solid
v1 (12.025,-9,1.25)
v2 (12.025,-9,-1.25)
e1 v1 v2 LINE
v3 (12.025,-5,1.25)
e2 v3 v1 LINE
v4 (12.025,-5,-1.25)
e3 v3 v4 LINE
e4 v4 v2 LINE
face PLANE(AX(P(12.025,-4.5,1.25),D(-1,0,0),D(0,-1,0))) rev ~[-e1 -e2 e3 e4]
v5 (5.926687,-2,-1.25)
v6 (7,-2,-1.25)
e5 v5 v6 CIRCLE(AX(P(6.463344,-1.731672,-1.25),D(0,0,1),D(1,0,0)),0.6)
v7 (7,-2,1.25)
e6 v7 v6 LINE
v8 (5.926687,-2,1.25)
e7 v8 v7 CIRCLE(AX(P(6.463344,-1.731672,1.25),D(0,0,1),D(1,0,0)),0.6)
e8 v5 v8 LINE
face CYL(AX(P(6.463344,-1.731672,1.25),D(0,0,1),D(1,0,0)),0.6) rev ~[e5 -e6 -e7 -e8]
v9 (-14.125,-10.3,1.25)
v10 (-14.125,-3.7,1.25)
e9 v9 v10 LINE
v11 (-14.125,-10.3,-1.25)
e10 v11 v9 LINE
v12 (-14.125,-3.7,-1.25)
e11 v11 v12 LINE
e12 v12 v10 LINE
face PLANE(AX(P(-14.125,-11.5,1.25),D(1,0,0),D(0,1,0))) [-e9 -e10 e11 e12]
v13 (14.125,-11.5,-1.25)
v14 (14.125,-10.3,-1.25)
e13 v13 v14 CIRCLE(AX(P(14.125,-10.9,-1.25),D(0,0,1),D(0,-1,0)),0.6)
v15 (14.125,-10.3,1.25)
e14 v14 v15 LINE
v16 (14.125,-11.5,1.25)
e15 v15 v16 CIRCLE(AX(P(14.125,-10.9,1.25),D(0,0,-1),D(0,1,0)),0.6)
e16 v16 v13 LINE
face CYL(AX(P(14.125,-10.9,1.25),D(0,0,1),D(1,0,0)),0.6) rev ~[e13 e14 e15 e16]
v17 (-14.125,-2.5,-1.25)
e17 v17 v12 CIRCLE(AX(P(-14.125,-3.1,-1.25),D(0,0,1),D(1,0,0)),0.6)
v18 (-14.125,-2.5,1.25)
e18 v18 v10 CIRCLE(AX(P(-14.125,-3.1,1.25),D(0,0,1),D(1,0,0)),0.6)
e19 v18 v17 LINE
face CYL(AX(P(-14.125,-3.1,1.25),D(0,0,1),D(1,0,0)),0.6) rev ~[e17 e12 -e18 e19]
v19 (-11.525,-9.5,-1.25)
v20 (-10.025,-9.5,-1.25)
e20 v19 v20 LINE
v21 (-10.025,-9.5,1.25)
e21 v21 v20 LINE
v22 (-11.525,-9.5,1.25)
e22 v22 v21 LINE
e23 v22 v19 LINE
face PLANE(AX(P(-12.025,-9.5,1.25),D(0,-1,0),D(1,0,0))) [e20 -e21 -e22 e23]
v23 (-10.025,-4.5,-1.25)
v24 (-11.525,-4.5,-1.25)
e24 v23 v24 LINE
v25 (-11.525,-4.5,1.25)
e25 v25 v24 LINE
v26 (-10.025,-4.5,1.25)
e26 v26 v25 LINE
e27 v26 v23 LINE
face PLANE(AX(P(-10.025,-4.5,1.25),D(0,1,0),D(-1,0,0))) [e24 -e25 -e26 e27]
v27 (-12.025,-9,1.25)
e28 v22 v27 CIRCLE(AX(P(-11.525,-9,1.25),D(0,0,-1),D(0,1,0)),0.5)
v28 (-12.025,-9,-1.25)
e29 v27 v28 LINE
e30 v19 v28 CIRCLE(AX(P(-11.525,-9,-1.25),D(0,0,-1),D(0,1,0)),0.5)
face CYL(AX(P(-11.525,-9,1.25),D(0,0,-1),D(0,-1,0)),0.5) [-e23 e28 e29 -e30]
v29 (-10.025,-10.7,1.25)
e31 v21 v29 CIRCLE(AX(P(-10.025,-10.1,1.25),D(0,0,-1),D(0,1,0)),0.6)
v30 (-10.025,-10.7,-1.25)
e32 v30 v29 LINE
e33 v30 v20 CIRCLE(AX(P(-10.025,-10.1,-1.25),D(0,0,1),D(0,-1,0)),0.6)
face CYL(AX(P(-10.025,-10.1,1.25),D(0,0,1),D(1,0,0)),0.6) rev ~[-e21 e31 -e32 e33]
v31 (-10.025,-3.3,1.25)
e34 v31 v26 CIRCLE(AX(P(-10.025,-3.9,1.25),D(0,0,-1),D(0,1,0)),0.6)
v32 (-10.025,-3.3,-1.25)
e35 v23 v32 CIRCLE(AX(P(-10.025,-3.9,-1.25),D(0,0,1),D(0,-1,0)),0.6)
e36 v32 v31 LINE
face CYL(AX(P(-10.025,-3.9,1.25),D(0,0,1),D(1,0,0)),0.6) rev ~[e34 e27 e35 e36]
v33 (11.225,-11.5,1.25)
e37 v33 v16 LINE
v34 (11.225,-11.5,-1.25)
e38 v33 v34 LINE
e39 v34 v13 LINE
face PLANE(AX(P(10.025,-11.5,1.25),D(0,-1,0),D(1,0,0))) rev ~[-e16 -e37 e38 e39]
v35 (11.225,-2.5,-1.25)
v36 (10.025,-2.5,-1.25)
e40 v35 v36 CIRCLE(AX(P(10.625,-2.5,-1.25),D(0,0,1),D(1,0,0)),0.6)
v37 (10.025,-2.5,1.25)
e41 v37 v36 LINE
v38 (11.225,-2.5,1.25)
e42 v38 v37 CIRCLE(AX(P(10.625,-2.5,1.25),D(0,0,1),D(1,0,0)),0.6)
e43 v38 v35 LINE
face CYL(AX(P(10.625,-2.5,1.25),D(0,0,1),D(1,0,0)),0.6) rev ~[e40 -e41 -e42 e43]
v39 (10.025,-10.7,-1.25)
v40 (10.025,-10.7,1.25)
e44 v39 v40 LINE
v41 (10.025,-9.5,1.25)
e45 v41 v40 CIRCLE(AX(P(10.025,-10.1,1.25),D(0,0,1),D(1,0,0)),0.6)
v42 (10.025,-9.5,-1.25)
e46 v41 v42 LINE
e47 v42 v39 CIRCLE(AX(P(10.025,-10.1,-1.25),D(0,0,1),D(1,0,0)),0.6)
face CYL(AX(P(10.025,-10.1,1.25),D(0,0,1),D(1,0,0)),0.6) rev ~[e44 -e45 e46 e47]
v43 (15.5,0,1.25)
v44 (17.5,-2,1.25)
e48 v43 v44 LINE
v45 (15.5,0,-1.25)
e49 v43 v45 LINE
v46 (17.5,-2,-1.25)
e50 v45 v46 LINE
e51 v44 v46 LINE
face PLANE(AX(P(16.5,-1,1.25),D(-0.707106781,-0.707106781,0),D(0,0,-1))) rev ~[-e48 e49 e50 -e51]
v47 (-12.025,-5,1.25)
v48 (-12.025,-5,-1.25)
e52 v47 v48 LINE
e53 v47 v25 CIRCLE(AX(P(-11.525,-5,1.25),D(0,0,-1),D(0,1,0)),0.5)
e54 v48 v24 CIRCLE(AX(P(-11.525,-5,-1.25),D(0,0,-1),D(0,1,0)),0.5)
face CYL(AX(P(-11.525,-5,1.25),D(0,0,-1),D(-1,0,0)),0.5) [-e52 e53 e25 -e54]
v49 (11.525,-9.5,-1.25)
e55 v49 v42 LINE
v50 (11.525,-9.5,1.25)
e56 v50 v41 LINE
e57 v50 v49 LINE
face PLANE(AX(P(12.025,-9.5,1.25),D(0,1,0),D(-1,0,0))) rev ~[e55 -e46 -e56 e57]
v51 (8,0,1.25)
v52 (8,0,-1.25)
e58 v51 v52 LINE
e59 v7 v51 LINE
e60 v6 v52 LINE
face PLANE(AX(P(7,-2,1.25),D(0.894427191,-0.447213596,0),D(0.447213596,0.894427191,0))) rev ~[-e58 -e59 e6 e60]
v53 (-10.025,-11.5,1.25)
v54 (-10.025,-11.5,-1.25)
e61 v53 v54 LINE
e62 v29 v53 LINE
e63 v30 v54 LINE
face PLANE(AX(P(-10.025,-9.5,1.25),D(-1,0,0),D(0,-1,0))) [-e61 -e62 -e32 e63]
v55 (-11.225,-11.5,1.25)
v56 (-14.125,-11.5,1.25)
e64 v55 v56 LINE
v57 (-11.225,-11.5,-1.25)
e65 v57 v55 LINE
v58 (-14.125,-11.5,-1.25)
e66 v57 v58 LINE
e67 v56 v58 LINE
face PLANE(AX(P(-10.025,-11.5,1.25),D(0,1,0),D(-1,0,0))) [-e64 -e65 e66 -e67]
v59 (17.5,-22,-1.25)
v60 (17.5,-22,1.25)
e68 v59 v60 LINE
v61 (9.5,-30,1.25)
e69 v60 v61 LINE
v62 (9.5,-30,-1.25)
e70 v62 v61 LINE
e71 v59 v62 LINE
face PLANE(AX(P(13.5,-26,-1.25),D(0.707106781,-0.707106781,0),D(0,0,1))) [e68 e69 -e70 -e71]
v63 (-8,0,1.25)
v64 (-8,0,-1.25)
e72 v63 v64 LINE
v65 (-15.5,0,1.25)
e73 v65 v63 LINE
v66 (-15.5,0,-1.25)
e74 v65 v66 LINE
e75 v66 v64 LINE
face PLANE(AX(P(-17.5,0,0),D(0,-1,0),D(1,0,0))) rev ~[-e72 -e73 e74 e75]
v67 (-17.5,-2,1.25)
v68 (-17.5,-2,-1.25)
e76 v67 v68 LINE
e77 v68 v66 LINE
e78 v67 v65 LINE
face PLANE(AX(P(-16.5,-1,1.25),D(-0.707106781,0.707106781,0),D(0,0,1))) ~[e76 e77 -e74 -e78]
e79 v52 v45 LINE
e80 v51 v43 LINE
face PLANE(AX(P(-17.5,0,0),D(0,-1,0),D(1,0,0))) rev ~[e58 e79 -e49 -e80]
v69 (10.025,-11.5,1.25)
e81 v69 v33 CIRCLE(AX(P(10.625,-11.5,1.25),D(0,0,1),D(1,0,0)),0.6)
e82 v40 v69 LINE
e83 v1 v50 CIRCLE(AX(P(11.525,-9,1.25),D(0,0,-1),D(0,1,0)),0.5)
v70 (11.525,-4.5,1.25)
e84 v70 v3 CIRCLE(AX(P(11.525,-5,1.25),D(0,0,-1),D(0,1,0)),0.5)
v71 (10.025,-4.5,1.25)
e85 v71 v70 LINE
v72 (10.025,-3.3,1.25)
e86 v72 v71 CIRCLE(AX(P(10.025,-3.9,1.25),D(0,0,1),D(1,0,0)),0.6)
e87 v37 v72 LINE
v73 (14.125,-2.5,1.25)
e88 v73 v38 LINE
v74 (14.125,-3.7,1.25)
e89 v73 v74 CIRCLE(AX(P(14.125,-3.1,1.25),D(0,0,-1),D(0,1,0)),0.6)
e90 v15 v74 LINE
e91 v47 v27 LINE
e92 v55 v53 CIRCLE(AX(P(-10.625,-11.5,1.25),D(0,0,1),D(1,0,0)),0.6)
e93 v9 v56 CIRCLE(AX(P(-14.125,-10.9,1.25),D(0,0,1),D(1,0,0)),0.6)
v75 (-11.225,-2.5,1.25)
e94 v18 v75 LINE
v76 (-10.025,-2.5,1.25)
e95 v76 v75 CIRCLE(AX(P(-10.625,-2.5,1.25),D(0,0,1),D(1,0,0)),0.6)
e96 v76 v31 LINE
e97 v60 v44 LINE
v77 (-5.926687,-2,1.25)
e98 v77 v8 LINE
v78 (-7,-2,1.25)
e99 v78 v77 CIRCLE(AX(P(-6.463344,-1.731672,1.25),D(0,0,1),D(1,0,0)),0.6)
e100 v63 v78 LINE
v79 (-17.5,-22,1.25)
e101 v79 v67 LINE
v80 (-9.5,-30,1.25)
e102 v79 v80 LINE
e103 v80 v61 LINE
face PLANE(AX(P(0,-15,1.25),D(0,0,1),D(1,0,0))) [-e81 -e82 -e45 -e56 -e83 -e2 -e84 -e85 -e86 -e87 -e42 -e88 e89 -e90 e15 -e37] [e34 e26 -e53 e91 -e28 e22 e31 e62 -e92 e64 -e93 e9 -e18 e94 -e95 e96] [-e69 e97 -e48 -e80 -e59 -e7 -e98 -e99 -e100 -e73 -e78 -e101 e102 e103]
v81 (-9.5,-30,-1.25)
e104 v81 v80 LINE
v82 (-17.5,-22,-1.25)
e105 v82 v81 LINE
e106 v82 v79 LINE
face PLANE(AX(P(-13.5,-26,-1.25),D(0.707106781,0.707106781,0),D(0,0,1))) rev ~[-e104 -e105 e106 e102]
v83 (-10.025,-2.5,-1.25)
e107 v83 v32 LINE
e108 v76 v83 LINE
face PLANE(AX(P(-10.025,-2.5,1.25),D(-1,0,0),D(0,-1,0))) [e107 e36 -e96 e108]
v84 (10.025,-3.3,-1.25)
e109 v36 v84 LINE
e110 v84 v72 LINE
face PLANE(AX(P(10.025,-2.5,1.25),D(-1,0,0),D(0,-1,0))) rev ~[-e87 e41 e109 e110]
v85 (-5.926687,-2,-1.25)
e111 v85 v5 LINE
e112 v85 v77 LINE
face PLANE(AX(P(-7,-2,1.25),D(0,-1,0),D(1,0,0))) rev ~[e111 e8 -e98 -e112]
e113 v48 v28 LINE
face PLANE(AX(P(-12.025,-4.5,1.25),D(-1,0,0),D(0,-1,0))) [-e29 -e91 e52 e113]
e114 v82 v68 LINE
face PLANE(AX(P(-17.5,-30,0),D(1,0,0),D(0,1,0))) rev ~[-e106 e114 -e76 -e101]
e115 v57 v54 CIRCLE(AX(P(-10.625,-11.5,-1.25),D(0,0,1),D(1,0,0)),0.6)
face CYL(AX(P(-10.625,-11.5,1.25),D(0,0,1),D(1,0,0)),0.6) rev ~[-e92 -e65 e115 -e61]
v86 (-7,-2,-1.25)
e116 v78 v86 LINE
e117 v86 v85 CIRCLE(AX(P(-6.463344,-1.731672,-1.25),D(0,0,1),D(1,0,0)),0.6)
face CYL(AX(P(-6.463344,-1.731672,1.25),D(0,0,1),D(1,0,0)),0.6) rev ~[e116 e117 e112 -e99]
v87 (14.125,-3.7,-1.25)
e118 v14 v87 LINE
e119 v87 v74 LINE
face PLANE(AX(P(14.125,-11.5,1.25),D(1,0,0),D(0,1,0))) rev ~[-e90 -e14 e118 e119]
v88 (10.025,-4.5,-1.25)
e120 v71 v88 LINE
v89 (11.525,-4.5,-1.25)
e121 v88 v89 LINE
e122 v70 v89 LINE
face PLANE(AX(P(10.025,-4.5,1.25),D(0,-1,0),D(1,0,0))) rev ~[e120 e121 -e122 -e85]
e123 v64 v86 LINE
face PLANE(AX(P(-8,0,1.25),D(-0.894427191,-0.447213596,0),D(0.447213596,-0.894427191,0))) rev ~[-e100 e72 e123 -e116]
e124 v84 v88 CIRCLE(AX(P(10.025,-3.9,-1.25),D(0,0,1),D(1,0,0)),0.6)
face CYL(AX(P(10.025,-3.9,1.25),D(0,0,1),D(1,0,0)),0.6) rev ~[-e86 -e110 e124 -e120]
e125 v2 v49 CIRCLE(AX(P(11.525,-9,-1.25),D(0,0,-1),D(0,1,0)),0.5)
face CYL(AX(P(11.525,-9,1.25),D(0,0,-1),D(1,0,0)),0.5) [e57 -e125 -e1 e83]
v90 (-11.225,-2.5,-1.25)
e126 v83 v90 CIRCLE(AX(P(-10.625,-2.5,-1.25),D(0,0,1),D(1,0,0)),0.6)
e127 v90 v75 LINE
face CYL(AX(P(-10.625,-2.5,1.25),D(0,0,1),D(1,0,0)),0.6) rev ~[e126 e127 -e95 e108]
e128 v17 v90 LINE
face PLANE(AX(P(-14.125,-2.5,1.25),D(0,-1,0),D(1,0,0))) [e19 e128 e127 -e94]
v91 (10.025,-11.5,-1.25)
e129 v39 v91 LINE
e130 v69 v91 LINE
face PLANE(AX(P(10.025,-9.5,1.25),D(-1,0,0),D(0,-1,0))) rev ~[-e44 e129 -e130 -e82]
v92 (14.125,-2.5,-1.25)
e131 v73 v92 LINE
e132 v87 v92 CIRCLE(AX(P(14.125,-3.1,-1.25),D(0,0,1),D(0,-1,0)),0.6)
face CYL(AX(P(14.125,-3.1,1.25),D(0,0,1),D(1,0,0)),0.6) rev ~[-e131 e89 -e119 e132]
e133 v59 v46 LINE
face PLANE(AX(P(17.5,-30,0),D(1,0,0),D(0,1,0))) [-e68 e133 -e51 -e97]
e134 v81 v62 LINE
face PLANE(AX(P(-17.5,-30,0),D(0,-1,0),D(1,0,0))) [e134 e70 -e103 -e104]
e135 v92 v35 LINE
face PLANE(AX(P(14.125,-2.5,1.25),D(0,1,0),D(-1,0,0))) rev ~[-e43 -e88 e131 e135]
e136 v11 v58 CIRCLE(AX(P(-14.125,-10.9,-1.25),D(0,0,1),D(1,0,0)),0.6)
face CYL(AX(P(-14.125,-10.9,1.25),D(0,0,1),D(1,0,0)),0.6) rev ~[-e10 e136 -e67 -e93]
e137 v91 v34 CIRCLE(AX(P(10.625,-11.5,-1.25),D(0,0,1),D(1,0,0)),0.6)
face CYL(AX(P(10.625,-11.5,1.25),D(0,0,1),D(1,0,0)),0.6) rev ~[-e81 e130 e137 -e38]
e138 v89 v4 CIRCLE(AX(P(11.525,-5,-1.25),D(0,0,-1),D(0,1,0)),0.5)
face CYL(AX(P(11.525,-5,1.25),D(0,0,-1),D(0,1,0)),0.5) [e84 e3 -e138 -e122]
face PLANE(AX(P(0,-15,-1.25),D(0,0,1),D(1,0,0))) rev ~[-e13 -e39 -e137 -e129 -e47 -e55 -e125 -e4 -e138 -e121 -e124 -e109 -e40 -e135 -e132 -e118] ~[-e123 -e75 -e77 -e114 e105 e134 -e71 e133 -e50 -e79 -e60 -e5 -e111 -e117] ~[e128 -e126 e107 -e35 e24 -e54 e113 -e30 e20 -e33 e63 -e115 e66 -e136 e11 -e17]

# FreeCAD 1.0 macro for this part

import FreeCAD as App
import Part
import Sketcher

V = App.Vector
Q = App.Units.Quantity


def edges_at(feature, points):
    """Names of the edges that pass closest to the given points."""
    edges = feature.Shape.Edges
    near = lambda p: min(range(len(edges)), key=lambda i: edges[i].distToShape(Part.Vertex(*p))[0])
    return sorted({f"Edge{near(p) + 1}" for p in points})


def add_polygon(sketch, points):
    """Adds a closed chain of lines whose ends are joined by coincident constraints."""
    first, n = sketch.GeometryCount, len(points)
    for a, b in zip(points, points[1:] + points[:1]):
        sketch.addGeometry(Part.LineSegment(App.Vector(*a, 0), App.Vector(*b, 0)), False)
    for i in range(n):
        sketch.addConstraint(Sketcher.Constraint("Coincident", first + i, 2, first + (i + 1) % n, 1))

doc = App.newDocument("Part")
body = doc.addObject("PartDesign::Body", "Body")

sketch1 = body.newObject("Sketcher::SketchObject", "Sketch")
sketch1.AttachmentSupport = (doc.getObject("XY_Plane"), [""])
sketch1.MapMode = "FlatFace"
add_polygon(sketch1, [(-17.5, 0), (-17.5, -30), (17.5, -30), (17.5, 0)])
sketch1.addConstraint([
    Sketcher.Constraint("Vertical", 0),
    Sketcher.Constraint("Horizontal", 1),
    Sketcher.Constraint("Vertical", 2),
    Sketcher.Constraint("Horizontal", 3),
    Sketcher.Constraint("Symmetric", 2, 2, 3, 2, -1, 1),
    Sketcher.Constraint("DistanceX", 1, 1, 1, 2, Q("35 mm")),
    Sketcher.Constraint("DistanceY", 0, 2, 0, 1, Q("30 mm")),
])
pad1 = body.newObject("PartDesign::Pad", "Pad")
pad1.Profile = sketch1
pad1.Length = 2.5
pad1.Midplane = True
doc.recompute()

chamfer = body.newObject("PartDesign::Chamfer", "Chamfer")
chamfer.Base = (pad1, edges_at(pad1, [(17.5, -30, 0), (-17.5, -30, 0)]))
chamfer.Size = 8
doc.recompute()

chamfer2 = body.newObject("PartDesign::Chamfer", "Chamfer001")
chamfer2.Base = (chamfer, edges_at(chamfer, [(-17.5, 0, 0), (17.5, 0, 0)]))
chamfer2.Size = 2

sketch2 = body.newObject("Sketcher::SketchObject", "Sketch001")
sketch2.AttachmentSupport = (doc.getObject("XY_Plane"), [""])
sketch2.MapMode = "FlatFace"
sketch2.AttachmentOffset = App.Placement(V(0, 0, 1.25), App.Rotation())
add_polygon(sketch2, [(-8, 0), (-7, -2), (7, -2), (8, 0)])
sketch2.addConstraint([
    Sketcher.Constraint("Horizontal", 1),
    Sketcher.Constraint("Horizontal", 3),
    Sketcher.Constraint("Symmetric", 2, 2, 3, 2, -1, 1),
    Sketcher.Constraint("Equal", 0, 2),
    Sketcher.Constraint("DistanceX", 1, 1, 1, 2, Q("14 mm")),
    Sketcher.Constraint("DistanceX", 3, 2, 3, 1, Q("16 mm")),
    Sketcher.Constraint("DistanceY", 0, 2, -1, 1, Q("2 mm")),
])
pocket1 = body.newObject("PartDesign::Pocket", "Pocket")
pocket1.Profile = sketch2
pocket1.Type = "ThroughAll"

sketch3 = body.newObject("Sketcher::SketchObject", "Sketch002")
sketch3.AttachmentSupport = (doc.getObject("XY_Plane"), [""])
sketch3.MapMode = "FlatFace"
sketch3.AttachmentOffset = App.Placement(V(0, 0, 1.25), App.Rotation())
add_polygon(sketch3, [(-10.025, -2.5), (-14.125, -2.5), (-14.125, -11.5), (-10.025, -11.5), (-10.025, -9.5), (-12.025, -9.5), (-12.025, -4.5), (-10.025, -4.5)])
add_polygon(sketch3, [(10.025, -11.5), (14.125, -11.5), (14.125, -2.5), (10.025, -2.5), (10.025, -4.5), (12.025, -4.5), (12.025, -9.5), (10.025, -9.5)])
sketch3.addConstraint([
    Sketcher.Constraint("Horizontal", 0),
    Sketcher.Constraint("Vertical", 1),
    Sketcher.Constraint("Horizontal", 2),
    Sketcher.Constraint("Vertical", 3),
    Sketcher.Constraint("Horizontal", 4),
    Sketcher.Constraint("Vertical", 5),
    Sketcher.Constraint("Horizontal", 6),
    Sketcher.Constraint("Vertical", 7),
    Sketcher.Constraint("Horizontal", 8),
    Sketcher.Constraint("Vertical", 9),
    Sketcher.Constraint("Horizontal", 10),
    Sketcher.Constraint("Vertical", 11),
    Sketcher.Constraint("Horizontal", 12),
    Sketcher.Constraint("Vertical", 13),
    Sketcher.Constraint("Horizontal", 14),
    Sketcher.Constraint("Vertical", 15),
    Sketcher.Constraint("Symmetric", 1, 2, 8, 2, -2),
    Sketcher.Constraint("Symmetric", 7, 2, 10, 2, -2),
    Sketcher.Constraint("Symmetric", 5, 2, 12, 2, -2),
    Sketcher.Constraint("Symmetric", 3, 2, 14, 2, -2),
    Sketcher.Constraint("Vertical", 3, 2, 6, 2),
    Sketcher.Constraint("Equal", 14, 3),
    Sketcher.Constraint("Equal", 3, 7),
    Sketcher.Constraint("DistanceX", 4, 2, 4, 1, Q("2 mm")),
    Sketcher.Constraint("DistanceY", 1, 2, 1, 1, Q("9 mm")),
    Sketcher.Constraint("DistanceX", 0, 2, 0, 1, Q("4.1 mm")),
    Sketcher.Constraint("DistanceY", 0, 2, -1, 1, Q("2.5 mm")),
    Sketcher.Constraint("DistanceX", 2, 2, 8, 2, Q("24.15 mm")),
])
pocket2 = body.newObject("PartDesign::Pocket", "Pocket001")
pocket2.Profile = sketch3
pocket2.Type = "ThroughAll"

sketch4 = body.newObject("Sketcher::SketchObject", "Sketch003")
sketch4.AttachmentSupport = (doc.getObject("XY_Plane"), [""])
sketch4.MapMode = "FlatFace"
sketch4.AttachmentOffset = App.Placement(V(0, 0, 1.25), App.Rotation())
sketch4.addGeometry([
    Part.Circle(V(-14.125, -3.1, 0), V(0, 0, 1), 0.6),
    Part.Circle(V(-14.125, -10.9, 0), V(0, 0, 1), 0.6),
    Part.Circle(V(-10.625, -11.5, 0), V(0, 0, 1), 0.6),
    Part.Circle(V(-10.025, -10.1, 0), V(0, 0, 1), 0.6),
    Part.Circle(V(-10.025, -3.9, 0), V(0, 0, 1), 0.6),
    Part.Circle(V(-10.625, -2.5, 0), V(0, 0, 1), 0.6),
    Part.Circle(V(10.625, -2.5, 0), V(0, 0, 1), 0.6),
    Part.Circle(V(10.025, -3.9, 0), V(0, 0, 1), 0.6),
    Part.Circle(V(10.025, -10.1, 0), V(0, 0, 1), 0.6),
    Part.Circle(V(10.625, -11.5, 0), V(0, 0, 1), 0.6),
    Part.Circle(V(14.125, -10.9, 0), V(0, 0, 1), 0.6),
    Part.Circle(V(14.125, -3.1, 0), V(0, 0, 1), 0.6),
    Part.Circle(V(-6.463344, -1.731672, 0), V(0, 0, 1), 0.6),
    Part.Circle(V(6.463344, -1.731672, 0), V(0, 0, 1), 0.6),
], False)
sketch4.addConstraint([
    Sketcher.Constraint("Equal", 0, 1),
    Sketcher.Constraint("Equal", 1, 2),
    Sketcher.Constraint("Equal", 2, 3),
    Sketcher.Constraint("Equal", 3, 4),
    Sketcher.Constraint("Equal", 4, 5),
    Sketcher.Constraint("Equal", 5, 6),
    Sketcher.Constraint("Equal", 6, 7),
    Sketcher.Constraint("Equal", 7, 8),
    Sketcher.Constraint("Equal", 8, 9),
    Sketcher.Constraint("Equal", 9, 10),
    Sketcher.Constraint("Equal", 10, 11),
    Sketcher.Constraint("Equal", 11, 12),
    Sketcher.Constraint("Equal", 12, 13),
    Sketcher.Constraint("Symmetric", 5, 3, 6, 3, -2),
    Sketcher.Constraint("Symmetric", 4, 3, 7, 3, -2),
    Sketcher.Constraint("Symmetric", 3, 3, 8, 3, -2),
    Sketcher.Constraint("Symmetric", 2, 3, 9, 3, -2),
    Sketcher.Constraint("Symmetric", 1, 3, 10, 3, -2),
    Sketcher.Constraint("Symmetric", 0, 3, 11, 3, -2),
    Sketcher.Constraint("Symmetric", 12, 3, 13, 3, -2),
    Sketcher.Constraint("Vertical", 0, 3, 1, 3),
    Sketcher.Constraint("Vertical", 3, 3, 4, 3),
    Sketcher.Constraint("Vertical", 2, 3, 5, 3),
    Sketcher.Constraint("Diameter", 0, Q("1.2 mm")),
    Sketcher.Constraint("DistanceY", 3, 3, 0, 3, Q("7 mm")),
    Sketcher.Constraint("DistanceY", 1, 3, 4, 3, Q("7 mm")),
    Sketcher.Constraint("DistanceY", 2, 3, 5, 3, Q("9 mm")),
    Sketcher.Constraint("DistanceY", 0, 3, -1, 1, Q("3.1 mm")),
    Sketcher.Constraint("DistanceY", 1, 3, -1, 1, Q("10.9 mm")),
    Sketcher.Constraint("DistanceY", 2, 3, -1, 1, Q("11.5 mm")),
    Sketcher.Constraint("DistanceX", 1, 3, 2, 3, Q("3.5 mm")),
    Sketcher.Constraint("DistanceX", 2, 3, 3, 3, Q("0.6 mm")),
    Sketcher.Constraint("DistanceX", 4, 3, 6, 3, Q("20.65 mm")),
    Sketcher.Constraint("DistanceY", 12, 3, -1, 1, Q("1.731672 mm")),
    Sketcher.Constraint("DistanceX", 12, 3, -1, 1, Q("6.463344 mm")),
])
pocket3 = body.newObject("PartDesign::Pocket", "Pocket002")
pocket3.Profile = sketch4
pocket3.Type = "ThroughAll"
doc.recompute()

fillet = body.newObject("PartDesign::Fillet", "Fillet")
fillet.Base = (pocket3, edges_at(pocket3, [
    (-12.025, -4.5, 0),
    (-12.025, -9.5, 0),
    (12.025, -9.5, 0),
    (12.025, -4.5, 0),
]))
fillet.Radius = 0.5

doc.recompute()
